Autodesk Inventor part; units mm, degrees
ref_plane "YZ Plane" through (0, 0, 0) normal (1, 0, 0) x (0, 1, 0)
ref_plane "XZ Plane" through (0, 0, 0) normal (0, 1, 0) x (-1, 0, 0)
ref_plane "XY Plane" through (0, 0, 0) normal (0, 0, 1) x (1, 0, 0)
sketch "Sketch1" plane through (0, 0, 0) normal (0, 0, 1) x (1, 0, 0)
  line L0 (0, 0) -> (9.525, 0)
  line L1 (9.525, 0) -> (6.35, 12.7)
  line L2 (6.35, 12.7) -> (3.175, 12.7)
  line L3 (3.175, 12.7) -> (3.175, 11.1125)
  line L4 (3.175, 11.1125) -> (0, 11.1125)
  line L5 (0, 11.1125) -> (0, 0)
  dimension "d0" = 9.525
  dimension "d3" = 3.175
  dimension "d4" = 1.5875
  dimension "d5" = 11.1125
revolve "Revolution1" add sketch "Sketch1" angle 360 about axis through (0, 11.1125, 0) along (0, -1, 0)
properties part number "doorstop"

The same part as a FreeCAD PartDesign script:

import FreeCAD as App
import Part
import Sketcher
Q = App.Units.Quantity


def add_polygon(sketch, points):
    """Adds a closed chain of lines whose ends are joined by coincident constraints."""
    first, n = sketch.GeometryCount, len(points)
    for a, b in zip(points, points[1:] + points[:1]):
        sketch.addGeometry(Part.LineSegment(App.Vector(*a, 0), App.Vector(*b, 0)), False)
    for i in range(n):
        sketch.addConstraint(Sketcher.Constraint("Coincident", first + i, 2, first + (i + 1) % n, 1))

doc = App.newDocument("Part")
body = doc.addObject("PartDesign::Body", "Body")

# Sketch on XY plane
sketch1 = body.newObject("Sketcher::SketchObject", "Sketch")
sketch1.AttachmentSupport = (doc.getObject("XY_Plane"), [""])
sketch1.MapMode = "FlatFace"
add_polygon(sketch1, [(0, 11.1), (0, 0), (9.5, 0), (6.3, 12.7), (3.2, 12.7), (3.2, 11.1)])  # lines 0-5
sketch1.addConstraint([
    Sketcher.Constraint("Vertical", 0),
    Sketcher.Constraint("Horizontal", 1),
    Sketcher.Constraint("Horizontal", 3),
    Sketcher.Constraint("Vertical", 4),
    Sketcher.Constraint("Horizontal", 5),
    Sketcher.Constraint("Coincident", 0, 2, -1, 1),
    Sketcher.Constraint("Equal", 3, 5),
    Sketcher.Constraint("DistanceX", 1, 1, 1, 2, Q("0.375 in")),
    Sketcher.Constraint("DistanceX", 3, 2, 3, 1, Q("0.125 in")),
    Sketcher.Constraint("DistanceY", 0, 2, 0, 1, Q("0.4375 in")),
    Sketcher.Constraint("DistanceY", 4, 2, 4, 1, Q("0.0625 in")),
])
revolution = body.newObject("PartDesign::Revolution", "Revolution")
revolution.Profile = sketch1
revolution.ReferenceAxis = (sketch1, ["V_Axis"])
revolution.Angle = 360

doc.recompute()
